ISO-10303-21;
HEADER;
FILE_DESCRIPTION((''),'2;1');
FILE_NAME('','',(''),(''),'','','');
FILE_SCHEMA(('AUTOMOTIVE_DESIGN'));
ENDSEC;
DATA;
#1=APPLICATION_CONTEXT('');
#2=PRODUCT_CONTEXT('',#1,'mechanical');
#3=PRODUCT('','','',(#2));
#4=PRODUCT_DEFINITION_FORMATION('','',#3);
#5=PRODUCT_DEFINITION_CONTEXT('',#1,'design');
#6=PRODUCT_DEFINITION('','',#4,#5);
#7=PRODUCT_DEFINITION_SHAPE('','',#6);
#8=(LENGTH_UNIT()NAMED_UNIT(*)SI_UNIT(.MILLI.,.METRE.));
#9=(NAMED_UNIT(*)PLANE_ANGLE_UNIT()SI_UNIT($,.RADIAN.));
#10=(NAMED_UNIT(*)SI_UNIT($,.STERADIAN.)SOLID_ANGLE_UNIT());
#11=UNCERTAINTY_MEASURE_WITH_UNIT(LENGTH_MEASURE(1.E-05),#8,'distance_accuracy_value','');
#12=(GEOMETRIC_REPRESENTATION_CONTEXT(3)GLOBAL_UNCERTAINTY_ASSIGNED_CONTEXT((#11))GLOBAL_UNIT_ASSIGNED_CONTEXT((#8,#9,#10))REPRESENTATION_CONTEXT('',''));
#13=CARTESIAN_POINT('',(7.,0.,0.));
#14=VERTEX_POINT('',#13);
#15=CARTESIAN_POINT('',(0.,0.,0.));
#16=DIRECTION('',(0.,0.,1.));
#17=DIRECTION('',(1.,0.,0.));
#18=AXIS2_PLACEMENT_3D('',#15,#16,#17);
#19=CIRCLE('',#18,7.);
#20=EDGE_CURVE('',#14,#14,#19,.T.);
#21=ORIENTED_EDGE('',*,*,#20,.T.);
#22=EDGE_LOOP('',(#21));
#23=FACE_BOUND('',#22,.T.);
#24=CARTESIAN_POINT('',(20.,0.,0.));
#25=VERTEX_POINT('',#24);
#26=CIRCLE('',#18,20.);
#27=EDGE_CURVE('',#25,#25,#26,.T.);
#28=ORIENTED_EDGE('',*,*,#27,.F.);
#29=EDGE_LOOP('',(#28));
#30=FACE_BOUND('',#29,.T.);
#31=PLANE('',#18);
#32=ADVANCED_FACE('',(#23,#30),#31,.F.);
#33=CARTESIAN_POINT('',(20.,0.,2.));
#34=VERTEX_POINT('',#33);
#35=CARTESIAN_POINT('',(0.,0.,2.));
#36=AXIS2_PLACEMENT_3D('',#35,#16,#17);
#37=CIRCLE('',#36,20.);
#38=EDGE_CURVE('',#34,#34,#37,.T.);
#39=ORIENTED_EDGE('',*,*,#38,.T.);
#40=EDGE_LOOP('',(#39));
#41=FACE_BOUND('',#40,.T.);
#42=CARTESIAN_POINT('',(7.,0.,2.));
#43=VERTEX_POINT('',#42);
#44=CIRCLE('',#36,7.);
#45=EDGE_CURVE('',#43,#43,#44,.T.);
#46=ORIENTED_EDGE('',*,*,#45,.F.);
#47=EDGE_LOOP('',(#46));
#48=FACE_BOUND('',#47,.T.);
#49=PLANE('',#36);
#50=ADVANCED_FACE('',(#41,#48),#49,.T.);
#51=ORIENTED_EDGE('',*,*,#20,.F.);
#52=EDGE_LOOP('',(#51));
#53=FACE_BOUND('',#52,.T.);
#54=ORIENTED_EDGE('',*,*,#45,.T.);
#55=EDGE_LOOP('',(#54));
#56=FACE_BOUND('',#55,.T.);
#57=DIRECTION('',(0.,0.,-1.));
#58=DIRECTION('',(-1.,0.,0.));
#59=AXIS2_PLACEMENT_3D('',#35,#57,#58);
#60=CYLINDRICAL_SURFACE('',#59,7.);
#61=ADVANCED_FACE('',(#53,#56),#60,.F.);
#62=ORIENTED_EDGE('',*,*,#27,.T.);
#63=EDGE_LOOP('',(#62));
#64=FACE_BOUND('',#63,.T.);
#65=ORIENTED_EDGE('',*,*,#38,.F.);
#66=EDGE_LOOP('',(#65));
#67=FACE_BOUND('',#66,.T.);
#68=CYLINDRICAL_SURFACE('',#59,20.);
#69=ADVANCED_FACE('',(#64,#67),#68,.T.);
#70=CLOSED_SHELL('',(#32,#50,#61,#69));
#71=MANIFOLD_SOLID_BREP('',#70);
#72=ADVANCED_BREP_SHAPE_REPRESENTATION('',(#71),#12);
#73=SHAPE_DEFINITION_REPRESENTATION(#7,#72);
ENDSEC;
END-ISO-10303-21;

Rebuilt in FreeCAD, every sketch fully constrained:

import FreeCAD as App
import Part
import Sketcher

doc = App.newDocument("Part")
body = doc.addObject("PartDesign::Body", "Body")

# Sketch on XY plane
sketch1 = body.newObject("Sketcher::SketchObject", "Sketch")
sketch1.AttachmentSupport = (doc.getObject("XY_Plane"), [""])
sketch1.MapMode = "FlatFace"
sketch1.addGeometry(Part.Circle(App.Vector(0, 0, 0), App.Vector(0, 0, 1), 20), False)
sketch1.addGeometry(Part.Circle(App.Vector(0, 0, 0), App.Vector(0, 0, 1), 7), False)
sketch1.addConstraint(Sketcher.Constraint("Coincident", 0, 3, -1, 1))
sketch1.addConstraint(Sketcher.Constraint("Coincident", 1, 3, -1, 1))
sketch1.addConstraint(Sketcher.Constraint("Diameter", 0, 40.0))
sketch1.addConstraint(Sketcher.Constraint("Diameter", 1, 14.0))
pad1 = body.newObject("PartDesign::Pad", "Pad")
pad1.Profile = sketch1
pad1.Length = 2

doc.recompute()
